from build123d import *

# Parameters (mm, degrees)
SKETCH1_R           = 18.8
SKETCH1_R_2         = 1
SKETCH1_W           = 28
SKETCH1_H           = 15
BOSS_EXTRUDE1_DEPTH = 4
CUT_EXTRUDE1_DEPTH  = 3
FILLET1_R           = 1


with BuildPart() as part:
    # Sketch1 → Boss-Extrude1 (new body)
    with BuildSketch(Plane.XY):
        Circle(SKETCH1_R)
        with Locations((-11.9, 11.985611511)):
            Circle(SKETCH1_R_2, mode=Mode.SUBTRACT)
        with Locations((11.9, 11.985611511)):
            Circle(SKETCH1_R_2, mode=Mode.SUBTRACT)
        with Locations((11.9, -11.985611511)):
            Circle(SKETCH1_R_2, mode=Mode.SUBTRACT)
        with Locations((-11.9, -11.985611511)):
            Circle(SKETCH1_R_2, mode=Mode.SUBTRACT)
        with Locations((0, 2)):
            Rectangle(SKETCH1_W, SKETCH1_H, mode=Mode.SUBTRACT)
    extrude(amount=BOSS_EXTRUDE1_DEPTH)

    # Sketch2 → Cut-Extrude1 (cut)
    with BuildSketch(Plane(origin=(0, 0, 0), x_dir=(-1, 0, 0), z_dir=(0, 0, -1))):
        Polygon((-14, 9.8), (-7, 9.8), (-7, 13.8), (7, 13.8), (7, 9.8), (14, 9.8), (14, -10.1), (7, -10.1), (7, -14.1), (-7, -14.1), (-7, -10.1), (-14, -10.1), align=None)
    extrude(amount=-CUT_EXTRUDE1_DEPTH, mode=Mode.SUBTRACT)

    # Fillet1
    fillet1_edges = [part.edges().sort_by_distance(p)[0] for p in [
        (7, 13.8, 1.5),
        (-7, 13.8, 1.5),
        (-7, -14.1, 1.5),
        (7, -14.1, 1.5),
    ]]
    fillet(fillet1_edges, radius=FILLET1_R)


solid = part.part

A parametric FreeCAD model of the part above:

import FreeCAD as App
import Part
import Sketcher

V = App.Vector
Q = App.Units.Quantity


def edges_at(feature, points):
    """Names of the edges that pass closest to the given points."""
    edges = feature.Shape.Edges
    near = lambda p: min(range(len(edges)), key=lambda i: edges[i].distToShape(Part.Vertex(*p))[0])
    return sorted({f"Edge{near(p) + 1}" for p in points})


def add_polygon(sketch, points):
    """Adds a closed chain of lines whose ends are joined by coincident constraints."""
    first, n = sketch.GeometryCount, len(points)
    for a, b in zip(points, points[1:] + points[:1]):
        sketch.addGeometry(Part.LineSegment(App.Vector(*a, 0), App.Vector(*b, 0)), False)
    for i in range(n):
        sketch.addConstraint(Sketcher.Constraint("Coincident", first + i, 2, first + (i + 1) % n, 1))

doc = App.newDocument("Part")
params = doc.addObject("Spreadsheet::Sheet", "Params")
for row, (alias, value) in enumerate([
    ("sketch1_diameter", "2 mm"),
    ("sketch1_diameter2", "37.6 mm"),
    ("sketch1_width", "28 mm"),
    ("sketch1_height", "15 mm"),
    ("pad1_length", "4 mm"),
    ("sketch2_width", "7 mm"),
    ("sketch2_width2", "14 mm"),
    ("sketch2_height", "4 mm"),
    ("sketch2_height2", "19.9 mm"),
    ("pocket1_length", "3 mm"),
    ("fillet_radius", "1 mm"),
], start=1):
    params.set(f"A{row}", alias)
    params.set(f"B{row}", "=" + value)
    params.setAlias(f"B{row}", alias)

body = doc.addObject("PartDesign::Body", "Body")

# Sketch on XY plane
sketch1 = body.newObject("Sketcher::SketchObject", "Sketch")
sketch1.AttachmentSupport = (doc.getObject("XY_Plane"), [""])
sketch1.MapMode = "FlatFace"
sketch1.addGeometry(Part.Circle(V(0, 0, 0), V(0, 0, 1), 18.8), False)  # 0
sketch1.addGeometry(Part.Circle(V(-11.9, -11.985612, 0), V(0, 0, 1), 1), False)  # 1
sketch1.addGeometry(Part.Circle(V(11.9, -11.985612, 0), V(0, 0, 1), 1), False)  # 2
sketch1.addGeometry(Part.Circle(V(-11.9, 11.985612, 0), V(0, 0, 1), 1), False)  # 3
add_polygon(sketch1, [(14, -5.5), (-14, -5.5), (-14, 9.5), (14, 9.5)])  # lines 4-7
sketch1.addGeometry(Part.Circle(V(11.9, 11.985612, 0), V(0, 0, 1), 1), False)  # 8
sketch1.addConstraint([
    Sketcher.Constraint("Horizontal", 4),
    Sketcher.Constraint("Vertical", 5),
    Sketcher.Constraint("Horizontal", 6),
    Sketcher.Constraint("Vertical", 7),
    Sketcher.Constraint("Coincident", 0, 3, -1, 1),
    Sketcher.Constraint("Equal", 1, 2),
    Sketcher.Constraint("Equal", 2, 3),
    Sketcher.Constraint("Equal", 3, 8),
    Sketcher.Constraint("Symmetric", 2, 3, 3, 3, -1, 1),
    Sketcher.Constraint("Symmetric", 1, 3, 8, 3, -1, 1),
    Sketcher.Constraint("Symmetric", 1, 3, 2, 3, -2),
    Sketcher.Constraint("Diameter", 1, Q("2 mm")),
    Sketcher.Constraint("Diameter", 0, Q("37.6 mm")),
    Sketcher.Constraint("DistanceX", 4, 2, 4, 1, Q("28 mm")),
    Sketcher.Constraint("DistanceY", 5, 1, 5, 2, Q("15 mm")),
    Sketcher.Constraint("DistanceX", 4, 2, -1, 1, Q("14 mm")),
    Sketcher.Constraint("DistanceX", 1, 3, -1, 1, Q("11.9 mm")),
    Sketcher.Constraint("DistanceY", 4, 2, -1, 1, Q("5.5 mm")),
    Sketcher.Constraint("DistanceY", 1, 3, -1, 1, Q("11.985612 mm")),
])
sketch1.setExpression("Constraints[15]", "Params.sketch1_diameter")
sketch1.setExpression("Constraints[16]", "Params.sketch1_diameter2")
sketch1.setExpression("Constraints[17]", "Params.sketch1_width")
sketch1.setExpression("Constraints[18]", "Params.sketch1_height")
pad1 = body.newObject("PartDesign::Pad", "Pad")
pad1.Profile = sketch1
pad1.setExpression("Length", "Params.pad1_length")

# Sketch on XY plane
sketch2 = body.newObject("Sketcher::SketchObject", "Sketch001")
sketch2.AttachmentSupport = (doc.getObject("XY_Plane"), [""])
sketch2.MapMode = "FlatFace"
add_polygon(sketch2, [(7, 9.8), (14, 9.8), (14, -10.1), (7, -10.1), (7, -14.1), (-7, -14.1), (-7, -10.1), (-14, -10.1), (-14, 9.8), (-7, 9.8), (-7, 13.8), (7, 13.8)])  # lines 0-11
sketch2.addConstraint([
    Sketcher.Constraint("Horizontal", 0),
    Sketcher.Constraint("Vertical", 1),
    Sketcher.Constraint("Horizontal", 2),
    Sketcher.Constraint("Vertical", 3),
    Sketcher.Constraint("Horizontal", 4),
    Sketcher.Constraint("Vertical", 5),
    Sketcher.Constraint("Horizontal", 6),
    Sketcher.Constraint("Vertical", 7),
    Sketcher.Constraint("Horizontal", 8),
    Sketcher.Constraint("Vertical", 9),
    Sketcher.Constraint("Horizontal", 10),
    Sketcher.Constraint("Vertical", 11),
    Sketcher.Constraint("Symmetric", 2, 2, 5, 2, -2),
    Sketcher.Constraint("Symmetric", 0, 2, 7, 2, -2),
    Sketcher.Constraint("Vertical", 5, 2, 8, 2),
    Sketcher.Constraint("Vertical", 3, 2, 10, 2),
    Sketcher.Constraint("Equal", 5, 9),
    Sketcher.Constraint("DistanceX", 0, 1, 0, 2, Q("7 mm")),
    Sketcher.Constraint("DistanceX", 4, 2, 4, 1, Q("14 mm")),
    Sketcher.Constraint("DistanceY", 3, 2, 3, 1, Q("4 mm")),
    Sketcher.Constraint("DistanceY", 1, 2, 1, 1, Q("19.9 mm")),
    Sketcher.Constraint("DistanceY", -1, 1, 0, 2, Q("9.8 mm")),
])
sketch2.setExpression("Constraints[29]", "Params.sketch2_width")
sketch2.setExpression("Constraints[30]", "Params.sketch2_width2")
sketch2.setExpression("Constraints[31]", "Params.sketch2_height")
sketch2.setExpression("Constraints[32]", "Params.sketch2_height2")
pocket1 = body.newObject("PartDesign::Pocket", "Pocket")
pocket1.Profile = sketch2
pocket1.setExpression("Length", "Params.pocket1_length")
pocket1.Reversed = True
doc.recompute()

fillet = body.newObject("PartDesign::Fillet", "Fillet")
fillet.Base = (pocket1, edges_at(pocket1, [
    (7, 13.8, 1.5),
    (-7, 13.8, 1.5),
    (-7, -14.1, 1.5),
    (7, -14.1, 1.5),
]))
fillet.setExpression("Radius", "Params.fillet_radius")

doc.recompute()
